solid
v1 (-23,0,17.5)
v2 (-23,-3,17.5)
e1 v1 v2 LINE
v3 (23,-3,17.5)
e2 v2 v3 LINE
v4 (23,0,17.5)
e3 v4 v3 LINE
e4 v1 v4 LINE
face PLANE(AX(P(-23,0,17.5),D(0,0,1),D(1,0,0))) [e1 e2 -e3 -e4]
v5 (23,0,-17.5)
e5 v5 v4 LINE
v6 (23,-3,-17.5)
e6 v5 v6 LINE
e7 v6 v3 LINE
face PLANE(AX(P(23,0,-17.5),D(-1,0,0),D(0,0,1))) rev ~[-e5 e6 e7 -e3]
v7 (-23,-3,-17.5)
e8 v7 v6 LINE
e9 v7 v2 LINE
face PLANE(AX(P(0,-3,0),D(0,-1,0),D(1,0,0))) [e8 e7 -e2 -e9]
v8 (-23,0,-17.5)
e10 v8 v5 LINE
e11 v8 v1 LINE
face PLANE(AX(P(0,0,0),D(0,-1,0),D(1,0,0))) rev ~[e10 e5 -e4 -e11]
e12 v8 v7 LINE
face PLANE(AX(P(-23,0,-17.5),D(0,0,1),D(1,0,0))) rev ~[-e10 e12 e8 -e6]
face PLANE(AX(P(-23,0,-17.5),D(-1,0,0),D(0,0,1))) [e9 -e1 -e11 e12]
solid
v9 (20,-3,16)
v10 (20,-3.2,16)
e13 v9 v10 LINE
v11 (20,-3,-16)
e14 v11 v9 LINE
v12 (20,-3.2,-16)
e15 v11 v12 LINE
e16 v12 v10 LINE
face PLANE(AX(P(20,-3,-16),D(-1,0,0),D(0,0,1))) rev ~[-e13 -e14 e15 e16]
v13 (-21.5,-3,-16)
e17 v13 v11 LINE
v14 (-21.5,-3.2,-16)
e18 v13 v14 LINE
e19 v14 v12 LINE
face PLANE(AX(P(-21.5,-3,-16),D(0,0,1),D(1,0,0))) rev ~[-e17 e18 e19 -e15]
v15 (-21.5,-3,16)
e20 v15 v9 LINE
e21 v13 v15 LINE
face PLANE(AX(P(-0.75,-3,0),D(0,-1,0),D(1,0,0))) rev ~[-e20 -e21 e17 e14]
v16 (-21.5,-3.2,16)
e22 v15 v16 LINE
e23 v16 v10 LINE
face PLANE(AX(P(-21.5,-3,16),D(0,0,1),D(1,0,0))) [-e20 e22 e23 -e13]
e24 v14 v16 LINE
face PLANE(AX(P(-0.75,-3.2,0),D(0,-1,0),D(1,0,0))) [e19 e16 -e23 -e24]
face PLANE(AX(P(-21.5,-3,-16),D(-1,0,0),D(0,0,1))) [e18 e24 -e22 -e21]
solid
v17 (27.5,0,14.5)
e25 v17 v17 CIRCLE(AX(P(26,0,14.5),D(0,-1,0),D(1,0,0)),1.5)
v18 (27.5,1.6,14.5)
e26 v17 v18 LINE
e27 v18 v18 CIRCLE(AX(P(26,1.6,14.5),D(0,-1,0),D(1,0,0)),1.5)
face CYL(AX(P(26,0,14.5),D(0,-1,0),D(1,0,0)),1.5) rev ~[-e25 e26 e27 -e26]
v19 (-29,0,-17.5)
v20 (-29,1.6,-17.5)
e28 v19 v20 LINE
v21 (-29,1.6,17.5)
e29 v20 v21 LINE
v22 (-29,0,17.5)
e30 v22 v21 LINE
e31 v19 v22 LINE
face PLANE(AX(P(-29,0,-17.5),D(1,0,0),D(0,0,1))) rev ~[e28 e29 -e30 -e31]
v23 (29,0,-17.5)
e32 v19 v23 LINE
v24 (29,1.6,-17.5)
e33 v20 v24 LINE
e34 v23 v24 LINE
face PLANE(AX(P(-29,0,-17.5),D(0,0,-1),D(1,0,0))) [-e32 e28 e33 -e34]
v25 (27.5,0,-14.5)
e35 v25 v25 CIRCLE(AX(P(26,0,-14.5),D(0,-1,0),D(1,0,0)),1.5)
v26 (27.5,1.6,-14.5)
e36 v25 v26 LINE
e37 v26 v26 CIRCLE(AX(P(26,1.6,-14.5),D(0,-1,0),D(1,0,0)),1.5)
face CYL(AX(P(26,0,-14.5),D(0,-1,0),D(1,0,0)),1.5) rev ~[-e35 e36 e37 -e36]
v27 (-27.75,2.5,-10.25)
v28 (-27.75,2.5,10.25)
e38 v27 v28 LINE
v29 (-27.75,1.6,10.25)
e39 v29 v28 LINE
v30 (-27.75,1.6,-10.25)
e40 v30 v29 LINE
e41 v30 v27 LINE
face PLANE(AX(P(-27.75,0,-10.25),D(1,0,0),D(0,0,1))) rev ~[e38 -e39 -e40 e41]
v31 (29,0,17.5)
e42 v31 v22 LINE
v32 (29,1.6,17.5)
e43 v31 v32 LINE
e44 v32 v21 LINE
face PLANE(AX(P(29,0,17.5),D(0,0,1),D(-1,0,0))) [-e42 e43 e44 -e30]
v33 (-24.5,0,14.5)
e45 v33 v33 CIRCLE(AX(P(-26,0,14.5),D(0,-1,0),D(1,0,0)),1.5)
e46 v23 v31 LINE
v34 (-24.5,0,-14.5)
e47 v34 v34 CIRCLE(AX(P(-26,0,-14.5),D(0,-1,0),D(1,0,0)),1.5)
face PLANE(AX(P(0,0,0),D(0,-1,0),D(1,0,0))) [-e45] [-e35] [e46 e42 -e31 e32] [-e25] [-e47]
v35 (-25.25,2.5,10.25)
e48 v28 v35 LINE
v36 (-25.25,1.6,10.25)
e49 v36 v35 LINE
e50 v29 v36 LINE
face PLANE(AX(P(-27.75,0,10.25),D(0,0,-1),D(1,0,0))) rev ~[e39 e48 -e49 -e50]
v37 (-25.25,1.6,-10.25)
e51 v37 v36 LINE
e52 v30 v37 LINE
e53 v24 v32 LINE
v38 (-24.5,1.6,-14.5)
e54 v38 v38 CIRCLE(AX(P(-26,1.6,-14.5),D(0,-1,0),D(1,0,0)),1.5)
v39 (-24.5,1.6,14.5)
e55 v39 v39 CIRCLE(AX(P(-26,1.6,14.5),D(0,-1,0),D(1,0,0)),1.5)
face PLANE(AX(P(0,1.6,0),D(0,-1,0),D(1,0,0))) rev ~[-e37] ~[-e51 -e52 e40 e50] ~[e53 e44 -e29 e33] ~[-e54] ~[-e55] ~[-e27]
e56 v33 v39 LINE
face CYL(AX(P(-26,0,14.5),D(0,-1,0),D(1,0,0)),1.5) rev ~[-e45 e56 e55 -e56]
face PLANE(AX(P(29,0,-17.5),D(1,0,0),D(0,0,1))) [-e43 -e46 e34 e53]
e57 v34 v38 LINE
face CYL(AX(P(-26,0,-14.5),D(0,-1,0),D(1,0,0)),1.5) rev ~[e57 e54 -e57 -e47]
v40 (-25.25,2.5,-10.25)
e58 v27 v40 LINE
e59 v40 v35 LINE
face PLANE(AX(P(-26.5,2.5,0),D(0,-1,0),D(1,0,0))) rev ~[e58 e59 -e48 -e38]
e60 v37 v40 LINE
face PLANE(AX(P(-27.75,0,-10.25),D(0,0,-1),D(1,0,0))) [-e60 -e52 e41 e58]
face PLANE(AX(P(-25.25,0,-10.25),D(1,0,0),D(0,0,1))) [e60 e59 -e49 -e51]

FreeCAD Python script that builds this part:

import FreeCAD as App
import Part
import Sketcher

V = App.Vector

doc = App.newDocument("Part")
body = doc.addObject("PartDesign::Body", "Body")

sketch1 = doc.addObject("Sketcher::SketchObject", "Sketch")
body.addObject(sketch1)
sketch1.AttachmentSupport = (doc.XZ_Plane, [""])
sketch1.MapMode = "FlatFace"
sketch1.addGeometry(Part.LineSegment(V(29, -17.5, 0), V(29, 17.5, 0)), False)
sketch1.addGeometry(Part.LineSegment(V(29, 17.5, 0), V(-29, 17.5, 0)), False)
sketch1.addGeometry(Part.LineSegment(V(-29, 17.5, 0), V(-29, -17.5, 0)), False)
sketch1.addGeometry(Part.LineSegment(V(-29, -17.5, 0), V(29, -17.5, 0)), False)
sketch1.addGeometry(Part.Circle(V(-26, -14.5, 0), V(0, 0, 1), 1.5), False)
sketch1.addGeometry(Part.Circle(V(26, -14.5, 0), V(0, 0, 1), 1.5), False)
sketch1.addGeometry(Part.LineSegment(V(-25.2, -10.2, 0), V(-27.8, -10.2, 0)), False)
sketch1.addGeometry(Part.LineSegment(V(-27.8, -10.2, 0), V(-27.8, 10.2, 0)), False)
sketch1.addGeometry(Part.LineSegment(V(-27.8, 10.2, 0), V(-25.2, 10.2, 0)), False)
sketch1.addGeometry(Part.LineSegment(V(-25.2, 10.2, 0), V(-25.2, -10.2, 0)), False)
sketch1.addGeometry(Part.Circle(V(-26, 14.5, 0), V(0, 0, 1), 1.5), False)
sketch1.addGeometry(Part.Circle(V(26, 14.5, 0), V(0, 0, 1), 1.5), False)
sketch1.addConstraint(Sketcher.Constraint("Coincident", 0, 2, 1, 1))
sketch1.addConstraint(Sketcher.Constraint("Coincident", 1, 2, 2, 1))
sketch1.addConstraint(Sketcher.Constraint("Coincident", 2, 2, 3, 1))
sketch1.addConstraint(Sketcher.Constraint("Coincident", 3, 2, 0, 1))
sketch1.addConstraint(Sketcher.Constraint("Coincident", 6, 2, 7, 1))
sketch1.addConstraint(Sketcher.Constraint("Coincident", 7, 2, 8, 1))
sketch1.addConstraint(Sketcher.Constraint("Coincident", 8, 2, 9, 1))
sketch1.addConstraint(Sketcher.Constraint("Coincident", 9, 2, 6, 1))
sketch1.addConstraint(Sketcher.Constraint("Vertical", 0))
sketch1.addConstraint(Sketcher.Constraint("Horizontal", 1))
sketch1.addConstraint(Sketcher.Constraint("Vertical", 2))
sketch1.addConstraint(Sketcher.Constraint("Horizontal", 3))
sketch1.addConstraint(Sketcher.Constraint("Horizontal", 6))
sketch1.addConstraint(Sketcher.Constraint("Vertical", 7))
sketch1.addConstraint(Sketcher.Constraint("Horizontal", 8))
sketch1.addConstraint(Sketcher.Constraint("Vertical", 9))
sketch1.addConstraint(Sketcher.Constraint("Equal", 4, 5))
sketch1.addConstraint(Sketcher.Constraint("Equal", 5, 10))
sketch1.addConstraint(Sketcher.Constraint("Equal", 10, 11))
sketch1.addConstraint(Sketcher.Constraint("Symmetric", 5, 3, 10, 3, -1, 1))
sketch1.addConstraint(Sketcher.Constraint("Symmetric", 4, 3, 11, 3, -1, 1))
sketch1.addConstraint(Sketcher.Constraint("Symmetric", 0, 2, 2, 2, -1, 1))
sketch1.addConstraint(Sketcher.Constraint("Symmetric", 4, 3, 5, 3, -2))
sketch1.addConstraint(Sketcher.Constraint("Diameter", 4, 3.0))
sketch1.addConstraint(Sketcher.Constraint("DistanceX", 1, 2, 1, 1, 58.0))
sketch1.addConstraint(Sketcher.Constraint("DistanceY", 0, 1, 0, 2, 35.0))
sketch1.addConstraint(Sketcher.Constraint("DistanceX", 6, 2, 6, 1, 2.5))
sketch1.addConstraint(Sketcher.Constraint("DistanceY", 7, 1, 7, 2, 20.5))
sketch1.addConstraint(Sketcher.Constraint("DistanceX", 4, 3, -1, 1, 26.0))
sketch1.addConstraint(Sketcher.Constraint("DistanceY", 4, 3, 10, 3, 29.0))
sketch1.addConstraint(Sketcher.Constraint("DistanceX", 6, 2, -1, 1, 27.75))
sketch1.addConstraint(Sketcher.Constraint("DistanceY", 6, 2, -1, 1, 10.25))
pad1 = doc.addObject("PartDesign::Pad", "Pad")
body.addObject(pad1)
pad1.Profile = sketch1
pad1.Length = 1.6
pad1.Reversed = True

sketch2 = doc.addObject("Sketcher::SketchObject", "Sketch001")
body.addObject(sketch2)
sketch2.AttachmentSupport = (doc.XZ_Plane, [""])
sketch2.MapMode = "FlatFace"
sketch2.addGeometry(Part.LineSegment(V(-27.8, 10.2, 0), V(-27.8, -10.2, 0)), False)
sketch2.addGeometry(Part.LineSegment(V(-27.8, -10.2, 0), V(-25.2, -10.2, 0)), False)
sketch2.addGeometry(Part.LineSegment(V(-25.2, -10.2, 0), V(-25.2, 10.2, 0)), False)
sketch2.addGeometry(Part.LineSegment(V(-25.2, 10.2, 0), V(-27.8, 10.2, 0)), False)
sketch2.addConstraint(Sketcher.Constraint("Coincident", 0, 2, 1, 1))
sketch2.addConstraint(Sketcher.Constraint("Coincident", 1, 2, 2, 1))
sketch2.addConstraint(Sketcher.Constraint("Coincident", 2, 2, 3, 1))
sketch2.addConstraint(Sketcher.Constraint("Coincident", 3, 2, 0, 1))
sketch2.addConstraint(Sketcher.Constraint("Vertical", 0))
sketch2.addConstraint(Sketcher.Constraint("Horizontal", 1))
sketch2.addConstraint(Sketcher.Constraint("Vertical", 2))
sketch2.addConstraint(Sketcher.Constraint("Horizontal", 3))
sketch2.addConstraint(Sketcher.Constraint("DistanceX", 1, 1, 1, 2, 2.5))
sketch2.addConstraint(Sketcher.Constraint("DistanceY", 0, 2, 0, 1, 20.5))
sketch2.addConstraint(Sketcher.Constraint("DistanceX", 0, 2, -1, 1, 27.75))
sketch2.addConstraint(Sketcher.Constraint("DistanceY", 0, 2, -1, 1, 10.25))
pad2 = doc.addObject("PartDesign::Pad", "Pad001")
body.addObject(pad2)
pad2.Profile = sketch2
pad2.Length = 2.5
pad2.Reversed = True
body2 = doc.addObject("PartDesign::Body", "Body001")

sketch3 = doc.addObject("Sketcher::SketchObject", "Sketch002")
body2.addObject(sketch3)
sketch3.AttachmentSupport = (doc.getObject("XZ_Plane001"), [""])
sketch3.MapMode = "FlatFace"
sketch3.addGeometry(Part.LineSegment(V(-23, 18, 0), V(-23, -18, 0)), False)
sketch3.addGeometry(Part.LineSegment(V(-23, -18, 0), V(23, -18, 0)), False)
sketch3.addGeometry(Part.LineSegment(V(23, -18, 0), V(23, 18, 0)), False)
sketch3.addGeometry(Part.LineSegment(V(23, 18, 0), V(-23, 18, 0)), False)
sketch3.addConstraint(Sketcher.Constraint("Coincident", 0, 2, 1, 1))
sketch3.addConstraint(Sketcher.Constraint("Coincident", 1, 2, 2, 1))
sketch3.addConstraint(Sketcher.Constraint("Coincident", 2, 2, 3, 1))
sketch3.addConstraint(Sketcher.Constraint("Coincident", 3, 2, 0, 1))
sketch3.addConstraint(Sketcher.Constraint("Vertical", 0))
sketch3.addConstraint(Sketcher.Constraint("Horizontal", 1))
sketch3.addConstraint(Sketcher.Constraint("Vertical", 2))
sketch3.addConstraint(Sketcher.Constraint("Horizontal", 3))
sketch3.addConstraint(Sketcher.Constraint("Symmetric", 0, 2, 2, 2, -1, 1))
sketch3.addConstraint(Sketcher.Constraint("DistanceX", 1, 1, 1, 2, 46.0))
sketch3.addConstraint(Sketcher.Constraint("DistanceY", 0, 2, 0, 1, 35.0))
pad3 = doc.addObject("PartDesign::Pad", "Pad002")
body2.addObject(pad3)
pad3.Profile = sketch3
pad3.Length = 3
body3 = doc.addObject("PartDesign::Body", "Body002")

sketch4 = doc.addObject("Sketcher::SketchObject", "Sketch003")
body3.addObject(sketch4)
sketch4.AttachmentSupport = (doc.getObject("XZ_Plane002"), [""])
sketch4.MapMode = "FlatFace"
sketch4.AttachmentOffset = App.Placement(V(0, 0, 3), App.Rotation())
sketch4.addGeometry(Part.LineSegment(V(-22, 16, 0), V(-22, -16, 0)), False)
sketch4.addGeometry(Part.LineSegment(V(-22, -16, 0), V(20, -16, 0)), False)
sketch4.addGeometry(Part.LineSegment(V(20, -16, 0), V(20, 16, 0)), False)
sketch4.addGeometry(Part.LineSegment(V(20, 16, 0), V(-22, 16, 0)), False)
sketch4.addConstraint(Sketcher.Constraint("Coincident", 0, 2, 1, 1))
sketch4.addConstraint(Sketcher.Constraint("Coincident", 1, 2, 2, 1))
sketch4.addConstraint(Sketcher.Constraint("Coincident", 2, 2, 3, 1))
sketch4.addConstraint(Sketcher.Constraint("Coincident", 3, 2, 0, 1))
sketch4.addConstraint(Sketcher.Constraint("Vertical", 0))
sketch4.addConstraint(Sketcher.Constraint("Horizontal", 1))
sketch4.addConstraint(Sketcher.Constraint("Vertical", 2))
sketch4.addConstraint(Sketcher.Constraint("Horizontal", 3))
sketch4.addConstraint(Sketcher.Constraint("DistanceY", 0, 2, 0, 1, 32.0))
sketch4.addConstraint(Sketcher.Constraint("DistanceX", 1, 1, 1, 2, 41.5))
sketch4.addConstraint(Sketcher.Constraint("DistanceY", 0, 2, -1, 1, 16.0))
sketch4.addConstraint(Sketcher.Constraint("DistanceX", -1, 1, 1, 2, 20.0))
pad4 = doc.addObject("PartDesign::Pad", "Pad003")
body3.addObject(pad4)
pad4.Profile = sketch4
pad4.Length = 0.2

doc.recompute()
